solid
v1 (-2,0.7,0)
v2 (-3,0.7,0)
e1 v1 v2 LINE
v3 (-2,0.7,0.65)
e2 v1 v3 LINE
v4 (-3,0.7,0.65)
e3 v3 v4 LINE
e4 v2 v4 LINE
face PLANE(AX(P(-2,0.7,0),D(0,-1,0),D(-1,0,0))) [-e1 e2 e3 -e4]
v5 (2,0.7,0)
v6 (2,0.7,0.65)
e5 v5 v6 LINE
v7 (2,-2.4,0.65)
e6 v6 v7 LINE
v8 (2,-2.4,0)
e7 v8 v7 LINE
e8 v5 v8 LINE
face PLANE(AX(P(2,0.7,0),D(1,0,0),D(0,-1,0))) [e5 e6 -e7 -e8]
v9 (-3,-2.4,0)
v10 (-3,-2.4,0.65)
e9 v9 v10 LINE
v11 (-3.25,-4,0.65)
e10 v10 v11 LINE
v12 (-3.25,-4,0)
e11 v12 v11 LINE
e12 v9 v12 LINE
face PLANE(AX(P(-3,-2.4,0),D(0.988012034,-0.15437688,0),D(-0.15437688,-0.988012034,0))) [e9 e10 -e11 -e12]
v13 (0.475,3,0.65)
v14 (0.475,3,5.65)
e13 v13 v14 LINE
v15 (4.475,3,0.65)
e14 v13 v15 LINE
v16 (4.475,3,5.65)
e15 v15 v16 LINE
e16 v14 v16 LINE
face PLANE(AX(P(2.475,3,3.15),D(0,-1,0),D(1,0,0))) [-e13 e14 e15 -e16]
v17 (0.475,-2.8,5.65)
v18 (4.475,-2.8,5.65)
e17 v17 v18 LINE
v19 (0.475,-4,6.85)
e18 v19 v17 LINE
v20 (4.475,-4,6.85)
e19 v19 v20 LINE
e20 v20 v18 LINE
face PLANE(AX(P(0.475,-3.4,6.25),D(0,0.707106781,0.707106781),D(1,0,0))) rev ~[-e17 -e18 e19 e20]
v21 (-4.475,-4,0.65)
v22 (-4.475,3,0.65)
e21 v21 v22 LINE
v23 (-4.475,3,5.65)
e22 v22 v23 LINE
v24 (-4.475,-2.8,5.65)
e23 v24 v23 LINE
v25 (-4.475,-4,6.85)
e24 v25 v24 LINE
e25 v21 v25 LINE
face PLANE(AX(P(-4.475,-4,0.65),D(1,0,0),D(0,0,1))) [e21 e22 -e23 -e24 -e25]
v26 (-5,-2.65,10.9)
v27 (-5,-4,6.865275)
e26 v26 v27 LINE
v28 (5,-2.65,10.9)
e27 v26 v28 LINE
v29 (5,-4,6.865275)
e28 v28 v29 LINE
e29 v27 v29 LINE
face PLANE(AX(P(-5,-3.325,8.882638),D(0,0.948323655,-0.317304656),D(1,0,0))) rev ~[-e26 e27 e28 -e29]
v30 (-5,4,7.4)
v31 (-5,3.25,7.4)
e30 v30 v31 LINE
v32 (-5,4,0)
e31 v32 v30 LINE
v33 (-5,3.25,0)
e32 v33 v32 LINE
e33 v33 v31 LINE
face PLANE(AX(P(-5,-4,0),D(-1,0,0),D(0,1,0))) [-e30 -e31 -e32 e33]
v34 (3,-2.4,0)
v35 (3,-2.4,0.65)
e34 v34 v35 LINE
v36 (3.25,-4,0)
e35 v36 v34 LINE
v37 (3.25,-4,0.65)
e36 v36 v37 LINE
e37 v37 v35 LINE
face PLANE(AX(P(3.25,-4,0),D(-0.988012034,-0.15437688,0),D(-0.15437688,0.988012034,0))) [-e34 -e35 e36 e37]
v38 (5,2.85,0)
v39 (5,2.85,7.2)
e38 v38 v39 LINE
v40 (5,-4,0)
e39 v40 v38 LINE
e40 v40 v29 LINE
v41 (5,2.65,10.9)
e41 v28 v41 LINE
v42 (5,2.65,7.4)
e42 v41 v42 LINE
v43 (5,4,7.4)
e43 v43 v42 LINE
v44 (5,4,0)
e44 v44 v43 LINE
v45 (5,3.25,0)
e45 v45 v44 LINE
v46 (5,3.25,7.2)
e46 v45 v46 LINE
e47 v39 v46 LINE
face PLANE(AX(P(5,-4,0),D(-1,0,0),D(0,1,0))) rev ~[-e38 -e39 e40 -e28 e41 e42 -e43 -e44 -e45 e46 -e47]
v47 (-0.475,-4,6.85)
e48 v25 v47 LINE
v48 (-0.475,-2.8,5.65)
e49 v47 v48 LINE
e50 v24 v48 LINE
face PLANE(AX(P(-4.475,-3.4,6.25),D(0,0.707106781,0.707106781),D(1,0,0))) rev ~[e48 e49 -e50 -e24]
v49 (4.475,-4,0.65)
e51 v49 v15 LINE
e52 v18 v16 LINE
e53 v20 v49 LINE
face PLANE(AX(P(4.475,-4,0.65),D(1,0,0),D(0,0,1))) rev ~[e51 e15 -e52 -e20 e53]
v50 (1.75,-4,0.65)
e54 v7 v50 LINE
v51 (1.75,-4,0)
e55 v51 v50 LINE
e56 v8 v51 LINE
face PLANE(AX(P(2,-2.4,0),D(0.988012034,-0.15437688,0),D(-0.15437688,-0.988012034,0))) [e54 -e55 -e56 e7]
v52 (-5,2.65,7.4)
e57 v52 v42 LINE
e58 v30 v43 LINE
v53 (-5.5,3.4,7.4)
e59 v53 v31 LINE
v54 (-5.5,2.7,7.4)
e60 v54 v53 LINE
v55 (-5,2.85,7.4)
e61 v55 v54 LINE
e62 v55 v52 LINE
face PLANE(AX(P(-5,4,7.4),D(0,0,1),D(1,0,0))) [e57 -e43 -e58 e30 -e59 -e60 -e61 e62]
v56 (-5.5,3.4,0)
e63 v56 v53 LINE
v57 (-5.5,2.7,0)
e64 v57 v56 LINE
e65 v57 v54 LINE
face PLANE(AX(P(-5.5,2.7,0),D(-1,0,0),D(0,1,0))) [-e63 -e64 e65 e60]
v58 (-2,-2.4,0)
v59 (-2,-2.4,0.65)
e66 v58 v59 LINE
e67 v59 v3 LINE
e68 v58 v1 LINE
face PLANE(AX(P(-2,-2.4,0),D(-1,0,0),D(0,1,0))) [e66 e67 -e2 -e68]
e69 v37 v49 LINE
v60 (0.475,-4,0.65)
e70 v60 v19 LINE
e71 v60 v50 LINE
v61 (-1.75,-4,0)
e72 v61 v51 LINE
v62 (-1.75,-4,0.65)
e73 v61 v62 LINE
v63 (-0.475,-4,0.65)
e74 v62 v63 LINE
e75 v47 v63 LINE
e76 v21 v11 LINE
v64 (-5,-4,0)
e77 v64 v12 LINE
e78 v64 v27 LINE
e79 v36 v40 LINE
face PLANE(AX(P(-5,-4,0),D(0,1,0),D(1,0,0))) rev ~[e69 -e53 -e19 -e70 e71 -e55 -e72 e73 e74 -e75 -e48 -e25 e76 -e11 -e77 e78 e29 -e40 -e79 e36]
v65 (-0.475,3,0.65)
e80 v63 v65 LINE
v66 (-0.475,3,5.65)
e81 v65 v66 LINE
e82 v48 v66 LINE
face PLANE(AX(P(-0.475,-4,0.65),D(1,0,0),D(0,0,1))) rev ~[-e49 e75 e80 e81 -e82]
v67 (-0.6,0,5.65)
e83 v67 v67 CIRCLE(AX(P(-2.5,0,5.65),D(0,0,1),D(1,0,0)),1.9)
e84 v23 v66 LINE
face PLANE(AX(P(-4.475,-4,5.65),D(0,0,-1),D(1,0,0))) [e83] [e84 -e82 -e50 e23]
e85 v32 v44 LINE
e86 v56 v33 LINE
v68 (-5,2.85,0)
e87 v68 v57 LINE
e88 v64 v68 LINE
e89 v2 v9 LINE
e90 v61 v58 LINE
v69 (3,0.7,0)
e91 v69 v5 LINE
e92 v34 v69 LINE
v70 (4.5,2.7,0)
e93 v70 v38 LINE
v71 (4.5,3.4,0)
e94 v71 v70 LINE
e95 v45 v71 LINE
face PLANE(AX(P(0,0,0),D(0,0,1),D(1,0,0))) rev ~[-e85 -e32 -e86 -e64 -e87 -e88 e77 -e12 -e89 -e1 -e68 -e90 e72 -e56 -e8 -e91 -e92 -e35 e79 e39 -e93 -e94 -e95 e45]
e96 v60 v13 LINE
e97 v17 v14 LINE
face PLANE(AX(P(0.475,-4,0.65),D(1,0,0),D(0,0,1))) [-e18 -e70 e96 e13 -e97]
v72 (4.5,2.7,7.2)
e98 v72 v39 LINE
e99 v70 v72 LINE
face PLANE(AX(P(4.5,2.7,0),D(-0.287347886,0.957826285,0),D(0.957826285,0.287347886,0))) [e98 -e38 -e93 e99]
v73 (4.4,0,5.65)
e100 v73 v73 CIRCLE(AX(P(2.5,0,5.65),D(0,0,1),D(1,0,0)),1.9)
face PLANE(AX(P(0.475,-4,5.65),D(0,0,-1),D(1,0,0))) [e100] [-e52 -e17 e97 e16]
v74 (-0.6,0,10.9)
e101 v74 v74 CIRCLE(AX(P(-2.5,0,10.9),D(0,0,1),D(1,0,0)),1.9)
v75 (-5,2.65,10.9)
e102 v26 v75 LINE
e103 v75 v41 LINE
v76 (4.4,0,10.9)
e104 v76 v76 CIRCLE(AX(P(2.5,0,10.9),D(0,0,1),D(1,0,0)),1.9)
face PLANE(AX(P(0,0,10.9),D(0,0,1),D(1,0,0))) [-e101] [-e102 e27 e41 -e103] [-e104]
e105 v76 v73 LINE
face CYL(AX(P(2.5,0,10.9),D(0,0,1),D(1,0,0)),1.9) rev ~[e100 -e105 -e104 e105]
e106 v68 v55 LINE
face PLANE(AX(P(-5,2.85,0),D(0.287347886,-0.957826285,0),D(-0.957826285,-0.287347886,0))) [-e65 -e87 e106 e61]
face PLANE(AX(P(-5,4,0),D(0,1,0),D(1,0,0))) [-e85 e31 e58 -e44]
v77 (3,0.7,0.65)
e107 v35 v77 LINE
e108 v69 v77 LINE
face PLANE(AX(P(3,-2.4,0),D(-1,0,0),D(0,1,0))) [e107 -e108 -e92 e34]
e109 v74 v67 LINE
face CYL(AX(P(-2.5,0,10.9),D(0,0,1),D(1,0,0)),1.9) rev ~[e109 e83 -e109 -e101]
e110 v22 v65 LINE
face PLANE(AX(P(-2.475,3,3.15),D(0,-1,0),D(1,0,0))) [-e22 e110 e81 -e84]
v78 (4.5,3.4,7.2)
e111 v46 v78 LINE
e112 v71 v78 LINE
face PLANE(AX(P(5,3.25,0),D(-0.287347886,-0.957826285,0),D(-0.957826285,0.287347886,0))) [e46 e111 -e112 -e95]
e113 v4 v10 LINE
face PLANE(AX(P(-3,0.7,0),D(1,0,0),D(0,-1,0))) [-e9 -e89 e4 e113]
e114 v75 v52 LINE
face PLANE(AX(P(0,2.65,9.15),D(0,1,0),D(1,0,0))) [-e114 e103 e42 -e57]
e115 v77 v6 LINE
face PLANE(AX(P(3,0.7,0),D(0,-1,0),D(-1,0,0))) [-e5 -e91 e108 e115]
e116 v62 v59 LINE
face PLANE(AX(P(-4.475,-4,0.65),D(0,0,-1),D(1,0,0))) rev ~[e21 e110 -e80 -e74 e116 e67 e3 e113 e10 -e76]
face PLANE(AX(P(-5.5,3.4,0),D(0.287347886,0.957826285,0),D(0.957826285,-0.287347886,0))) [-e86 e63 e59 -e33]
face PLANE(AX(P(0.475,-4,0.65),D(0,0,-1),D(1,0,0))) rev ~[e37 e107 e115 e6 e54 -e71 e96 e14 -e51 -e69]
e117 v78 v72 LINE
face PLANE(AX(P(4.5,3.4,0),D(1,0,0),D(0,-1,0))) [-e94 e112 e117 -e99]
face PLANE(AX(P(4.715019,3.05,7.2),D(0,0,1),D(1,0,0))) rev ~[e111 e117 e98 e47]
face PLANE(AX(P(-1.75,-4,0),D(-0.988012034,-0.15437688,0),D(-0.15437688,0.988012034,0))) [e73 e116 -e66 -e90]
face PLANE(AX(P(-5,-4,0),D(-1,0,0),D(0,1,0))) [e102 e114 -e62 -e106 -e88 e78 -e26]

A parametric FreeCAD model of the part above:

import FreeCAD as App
import Part
import Sketcher
from FreeCAD import Vector
Q = App.Units.Quantity


def edges_at(feature, points):
    """Names of the edges that pass closest to the given points."""
    edges = feature.Shape.Edges
    near = lambda p: min(range(len(edges)), key=lambda i: edges[i].distToShape(Part.Vertex(*p))[0])
    return sorted({f"Edge{near(p) + 1}" for p in points})


def add_polygon(sketch, points):
    """Adds a closed chain of lines whose ends are joined by coincident constraints."""
    first, n = sketch.GeometryCount, len(points)
    for a, b in zip(points, points[1:] + points[:1]):
        sketch.addGeometry(Part.LineSegment(App.Vector(*a, 0), App.Vector(*b, 0)), False)
    for i in range(n):
        sketch.addConstraint(Sketcher.Constraint("Coincident", first + i, 2, first + (i + 1) % n, 1))

doc = App.newDocument("Part")
body = doc.addObject("PartDesign::Body", "Body")

# Sketch on XY plane
sketch1 = body.newObject("Sketcher::SketchObject", "Sketch")
sketch1.AttachmentSupport = (doc.getObject("XY_Plane"), [""])
sketch1.MapMode = "FlatFace"
add_polygon(sketch1, [(-5, 4), (-5, -4), (5, -4), (5, 4)])  # lines 0-3
sketch1.addConstraint([
    Sketcher.Constraint("Vertical", 0),
    Sketcher.Constraint("Horizontal", 1),
    Sketcher.Constraint("Vertical", 2),
    Sketcher.Constraint("Horizontal", 3),
    Sketcher.Constraint("Symmetric", 0, 2, 2, 2, -1, 1),
    Sketcher.Constraint("DistanceX", 1, 1, 1, 2, Q("10 mm")),
    Sketcher.Constraint("DistanceY", 0, 2, 0, 1, Q("8 mm")),
])
pad1 = body.newObject("PartDesign::Pad", "Pad")
pad1.Profile = sketch1
pad1.Length = 10.9
doc.recompute()

chamfer = body.newObject("PartDesign::Chamfer", "Chamfer")
chamfer.Base = (pad1, edges_at(pad1, [(0, -4, 10.9)]))
chamfer.ChamferType = "Two distances"
chamfer.Size = 1.35
chamfer.Size2 = 4.034725
chamfer.FlipDirection = True

# Sketch on XZ plane
sketch2 = body.newObject("Sketcher::SketchObject", "Sketch001")
sketch2.AttachmentSupport = (doc.getObject("XZ_Plane"), [""])
sketch2.MapMode = "FlatFace"
sketch2.AttachmentOffset = App.Placement(Vector(0, 0, -4), App.Rotation())
add_polygon(sketch2, [(-5, 7.4), (-5, 10.9), (5, 10.9), (5, 7.4)])  # lines 0-3
sketch2.addConstraint([
    Sketcher.Constraint("Vertical", 0),
    Sketcher.Constraint("Horizontal", 1),
    Sketcher.Constraint("Vertical", 2),
    Sketcher.Constraint("Horizontal", 3),
    Sketcher.Constraint("DistanceX", 1, 1, 1, 2, Q("10 mm")),
    Sketcher.Constraint("DistanceY", 0, 1, 0, 2, Q("3.5 mm")),
    Sketcher.Constraint("DistanceX", 0, 2, -1, 1, Q("5 mm")),
    Sketcher.Constraint("DistanceY", -1, 1, 0, 2, Q("10.9 mm")),
])
pocket1 = body.newObject("PartDesign::Pocket", "Pocket")
pocket1.Profile = sketch2
pocket1.Length = 1.35
pocket1.Reversed = True

# Sketch on XZ plane
sketch3 = body.newObject("Sketcher::SketchObject", "Sketch002")
sketch3.AttachmentSupport = (doc.getObject("XZ_Plane"), [""])
sketch3.MapMode = "FlatFace"
sketch3.AttachmentOffset = App.Placement(Vector(0, 0, 4), App.Rotation())
add_polygon(sketch3, [(-4.5, 5.7), (-4.5, 0.7), (-0.5, 0.7), (-0.5, 5.7)])  # lines 0-3
add_polygon(sketch3, [(0.5, 5.7), (0.5, 0.7), (4.5, 0.7), (4.5, 5.7)])  # lines 4-7
sketch3.addConstraint([
    Sketcher.Constraint("Vertical", 0),
    Sketcher.Constraint("Horizontal", 1),
    Sketcher.Constraint("Vertical", 2),
    Sketcher.Constraint("Horizontal", 3),
    Sketcher.Constraint("Vertical", 4),
    Sketcher.Constraint("Horizontal", 5),
    Sketcher.Constraint("Vertical", 6),
    Sketcher.Constraint("Horizontal", 7),
    Sketcher.Constraint("Symmetric", 1, 2, 4, 2, -2),
    Sketcher.Constraint("Symmetric", 3, 2, 6, 2, -2),
    Sketcher.Constraint("DistanceX", 1, 1, 1, 2, Q("4 mm")),
    Sketcher.Constraint("DistanceY", 0, 2, 0, 1, Q("5 mm")),
    Sketcher.Constraint("DistanceY", -1, 1, 0, 2, Q("0.65 mm")),
    Sketcher.Constraint("DistanceX", 1, 2, 4, 2, Q("0.95 mm")),
])
pocket2 = body.newObject("PartDesign::Pocket", "Pocket001")
pocket2.Profile = sketch3
pocket2.Length = 7
doc.recompute()

chamfer2 = body.newObject("PartDesign::Chamfer", "Chamfer001")
chamfer2.Base = (pocket2, edges_at(pocket2, [(-2.475, -4, 5.65), (2.475, -4, 5.65)]))
chamfer2.Size = 1.2

# Sketch on XY plane
sketch4 = body.newObject("Sketcher::SketchObject", "Sketch003")
sketch4.AttachmentSupport = (doc.getObject("XY_Plane"), [""])
sketch4.MapMode = "FlatFace"
add_polygon(sketch4, [(-3, 0.7), (-2, 0.7), (-2, -2.4), (-1.8, -4), (-3.2, -4), (-3, -2.4)])  # lines 0-5
add_polygon(sketch4, [(2, -2.4), (2, 0.7), (3, 0.7), (3, -2.4), (3.2, -4), (1.8, -4)])  # lines 6-11
sketch4.addConstraint([
    Sketcher.Constraint("Horizontal", 0),
    Sketcher.Constraint("Vertical", 1),
    Sketcher.Constraint("Horizontal", 3),
    Sketcher.Constraint("Vertical", 5),
    Sketcher.Constraint("Vertical", 6),
    Sketcher.Constraint("Horizontal", 7),
    Sketcher.Constraint("Vertical", 8),
    Sketcher.Constraint("Horizontal", 10),
    Sketcher.Constraint("Symmetric", 0, 2, 6, 2, -2),
    Sketcher.Constraint("Symmetric", 4, 2, 8, 2, -2),
    Sketcher.Constraint("Symmetric", 3, 2, 9, 2, -2),
    Sketcher.Constraint("Parallel", 2, 9),
    Sketcher.Constraint("Parallel", 4, 11),
    Sketcher.Constraint("Horizontal", 1, 2, 4, 2),
    Sketcher.Constraint("Horizontal", 8, 2, 11, 2),
    Sketcher.Constraint("DistanceX", 0, 1, 0, 2, Q("1 mm")),
    Sketcher.Constraint("DistanceX", 3, 2, 3, 1, Q("1.5 mm")),
    Sketcher.Constraint("DistanceY", 1, 2, 1, 1, Q("3.1 mm")),
    Sketcher.Constraint("DistanceX", 0, 2, -1, 1, Q("2 mm")),
    Sketcher.Constraint("DistanceY", 2, 2, -1, 1, Q("4 mm")),
    Sketcher.Constraint("DistanceY", -1, 1, 0, 2, Q("0.7 mm")),
])
pocket3 = body.newObject("PartDesign::Pocket", "Pocket002")
pocket3.Profile = sketch4
pocket3.Length = 0.65
pocket3.Reversed = True

# Sketch on XY plane
sketch5 = body.newObject("Sketcher::SketchObject", "Sketch004")
sketch5.AttachmentSupport = (doc.getObject("XY_Plane"), [""])
sketch5.MapMode = "FlatFace"
sketch5.AttachmentOffset = App.Placement(Vector(0, 0, 10.9), App.Rotation())
sketch5.addGeometry([
    Part.Circle(Vector(-2.5, 0, 0), Vector(0, 0, 1), 1.9),
    Part.Circle(Vector(2.5, 0, 0), Vector(0, 0, 1), 1.9),
], False)
sketch5.addConstraint([
    Sketcher.Constraint("Equal", 0, 1),
    Sketcher.Constraint("Symmetric", 0, 3, 1, 3, -1, 1),
    Sketcher.Constraint("PointOnObject", 0, 3, -1),
    Sketcher.Constraint("Diameter", 0, Q("3.8 mm")),
    Sketcher.Constraint("DistanceX", 0, 3, 1, 3, Q("5 mm")),
])
pocket4 = body.newObject("PartDesign::Pocket", "Pocket003")
pocket4.Profile = sketch5
pocket4.Length = 5.25

# Sketch on XY plane
sketch6 = body.newObject("Sketcher::SketchObject", "Sketch005")
sketch6.AttachmentSupport = (doc.getObject("XY_Plane"), [""])
sketch6.MapMode = "FlatFace"
add_polygon(sketch6, [(-5, 3.25), (-5, 2.85), (-5.5, 2.7), (-5.5, 3.4)])  # lines 0-3
sketch6.addConstraint([
    Sketcher.Constraint("Vertical", 0),
    Sketcher.Constraint("Vertical", 2),
    Sketcher.Constraint("Equal", 1, 3),
    Sketcher.Constraint("DistanceY", 0, 2, 0, 1, Q("0.4 mm")),
    Sketcher.Constraint("DistanceY", 2, 1, 2, 2, Q("0.7 mm")),
    Sketcher.Constraint("DistanceX", 0, 2, -1, 1, Q("5 mm")),
    Sketcher.Constraint("DistanceX", 1, 2, -1, 1, Q("5.5 mm")),
    Sketcher.Constraint("DistanceY", -1, 1, 1, 2, Q("2.7 mm")),
])
pad2 = body.newObject("PartDesign::Pad", "Pad001")
pad2.Profile = sketch6
pad2.Length = 7.4

# Sketch on XY plane
sketch7 = body.newObject("Sketcher::SketchObject", "Sketch006")
sketch7.AttachmentSupport = (doc.getObject("XY_Plane"), [""])
sketch7.MapMode = "FlatFace"
add_polygon(sketch7, [(4.5, 3.4), (5, 3.25), (5, 2.85), (4.5, 2.7)])  # lines 0-3
sketch7.addConstraint([
    Sketcher.Constraint("Vertical", 1),
    Sketcher.Constraint("Vertical", 3),
    Sketcher.Constraint("Equal", 0, 2),
    Sketcher.Constraint("DistanceY", 1, 2, 1, 1, Q("0.4 mm")),
    Sketcher.Constraint("DistanceY", 3, 1, 3, 2, Q("0.7 mm")),
    Sketcher.Constraint("DistanceX", -1, 1, 0, 2, Q("5 mm")),
    Sketcher.Constraint("DistanceX", -1, 1, 2, 2, Q("4.5 mm")),
    Sketcher.Constraint("DistanceY", -1, 1, 2, 2, Q("2.7 mm")),
])
pocket5 = body.newObject("PartDesign::Pocket", "Pocket004")
pocket5.Profile = sketch7
pocket5.Length = 7.2
pocket5.Reversed = True

doc.recompute()
